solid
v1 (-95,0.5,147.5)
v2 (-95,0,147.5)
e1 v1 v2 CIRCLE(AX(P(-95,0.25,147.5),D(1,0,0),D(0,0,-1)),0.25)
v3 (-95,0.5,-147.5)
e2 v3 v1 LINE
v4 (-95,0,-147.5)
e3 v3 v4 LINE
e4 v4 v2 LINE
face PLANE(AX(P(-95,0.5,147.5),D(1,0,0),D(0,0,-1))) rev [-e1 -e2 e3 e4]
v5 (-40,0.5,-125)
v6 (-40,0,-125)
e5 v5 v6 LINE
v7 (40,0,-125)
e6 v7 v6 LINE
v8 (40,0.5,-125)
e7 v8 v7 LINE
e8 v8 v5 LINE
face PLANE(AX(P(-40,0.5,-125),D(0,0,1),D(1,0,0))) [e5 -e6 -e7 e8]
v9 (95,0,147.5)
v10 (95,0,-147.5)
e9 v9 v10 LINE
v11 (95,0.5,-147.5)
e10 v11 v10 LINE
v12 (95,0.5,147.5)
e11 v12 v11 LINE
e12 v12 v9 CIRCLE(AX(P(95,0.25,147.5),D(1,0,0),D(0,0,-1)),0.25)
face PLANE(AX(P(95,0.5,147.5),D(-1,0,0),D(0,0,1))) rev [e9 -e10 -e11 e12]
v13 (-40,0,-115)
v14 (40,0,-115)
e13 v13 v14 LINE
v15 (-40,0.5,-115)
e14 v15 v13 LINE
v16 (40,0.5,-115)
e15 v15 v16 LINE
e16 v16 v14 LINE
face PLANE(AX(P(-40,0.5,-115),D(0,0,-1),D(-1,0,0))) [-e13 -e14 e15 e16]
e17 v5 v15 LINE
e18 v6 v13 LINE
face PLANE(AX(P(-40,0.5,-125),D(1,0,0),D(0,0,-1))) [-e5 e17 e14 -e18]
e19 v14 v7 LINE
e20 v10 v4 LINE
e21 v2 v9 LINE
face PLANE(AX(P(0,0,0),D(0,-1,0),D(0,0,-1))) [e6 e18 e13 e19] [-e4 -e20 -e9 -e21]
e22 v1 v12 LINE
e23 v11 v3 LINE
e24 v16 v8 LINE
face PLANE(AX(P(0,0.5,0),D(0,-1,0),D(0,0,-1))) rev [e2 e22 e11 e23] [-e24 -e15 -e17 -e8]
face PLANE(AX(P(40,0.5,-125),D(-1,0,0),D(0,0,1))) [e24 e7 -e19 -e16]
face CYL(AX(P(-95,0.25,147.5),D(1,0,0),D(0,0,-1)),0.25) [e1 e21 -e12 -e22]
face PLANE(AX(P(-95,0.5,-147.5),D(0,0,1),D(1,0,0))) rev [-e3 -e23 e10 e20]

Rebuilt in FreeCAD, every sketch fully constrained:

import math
import FreeCAD as App
import Part
import Sketcher
from FreeCAD import Vector


def add_polygon(sketch, points):
    """Adds a closed chain of lines whose ends are joined by coincident constraints."""
    first, n = sketch.GeometryCount, len(points)
    for a, b in zip(points, points[1:] + points[:1]):
        sketch.addGeometry(Part.LineSegment(App.Vector(*a, 0), App.Vector(*b, 0)), False)
    for i in range(n):
        sketch.addConstraint(Sketcher.Constraint("Coincident", first + i, 2, first + (i + 1) % n, 1))

doc = App.newDocument("Part")
body = doc.addObject("PartDesign::Body", "Body")

# Sketch on XZ plane
sketch1 = body.newObject("Sketcher::SketchObject", "Sketch")
sketch1.AttachmentSupport = (doc.getObject("XZ_Plane"), [""])
sketch1.MapMode = "FlatFace"
add_polygon(sketch1, [(-95, -148), (-95, 148), (95, 148), (95, -148)])  # lines 0-3
add_polygon(sketch1, [(40, -115), (-40, -115), (-40, -125), (40, -125)])  # lines 4-7
sketch1.addConstraint([
    Sketcher.Constraint("Vertical", 0),
    Sketcher.Constraint("Horizontal", 1),
    Sketcher.Constraint("Vertical", 2),
    Sketcher.Constraint("Horizontal", 3),
    Sketcher.Constraint("Horizontal", 4),
    Sketcher.Constraint("Vertical", 5),
    Sketcher.Constraint("Horizontal", 6),
    Sketcher.Constraint("Vertical", 7),
    Sketcher.Constraint("Symmetric", 0, 2, 2, 2, -1, 1),
    Sketcher.Constraint("DistanceX", 1, 1, 1, 2, 190.0),
    Sketcher.Constraint("DistanceX", 4, 2, 4, 1, 80.0),
    Sketcher.Constraint("DistanceY", 0, 1, 0, 2, 295.0),
    Sketcher.Constraint("DistanceY", 5, 2, 5, 1, 10.0),
    Sketcher.Constraint("DistanceX", 4, 2, -1, 1, 40.0),
    Sketcher.Constraint("DistanceY", 4, 2, -1, 1, 115.0),
])
pad1 = body.newObject("PartDesign::Pad", "Pad")
pad1.Profile = sketch1
pad1.Length = 0.5
pad1.Reversed = True

# Sketch on YZ plane
sketch2 = body.newObject("Sketcher::SketchObject", "Sketch001")
sketch2.AttachmentSupport = (doc.getObject("YZ_Plane"), [""])
sketch2.MapMode = "FlatFace"
sketch2.AttachmentOffset = App.Placement(Vector(0, 0, 95), App.Rotation())
sketch2.addGeometry([
    Part.LineSegment(Vector(0, 147.5, 0), Vector(0.5, 147.5, 0)),
    Part.ArcOfCircle(Part.Circle(Vector(0.25, 147.5, 0), Vector(0, 0, 1), 0.25), math.radians(0), math.radians(180)),
], False)
sketch2.addConstraint([
    Sketcher.Constraint("Coincident", 0, 1, 1, 2),
    Sketcher.Constraint("Coincident", 1, 1, 0, 2),
    Sketcher.Constraint("Horizontal", 0),
    Sketcher.Constraint("PointOnObject", 0, 1, -2),
    Sketcher.Constraint("Horizontal", 1, 3, 0, 1),
    Sketcher.Constraint("Radius", 1, 0.25),
    Sketcher.Constraint("DistanceY", -1, 1, 1, 3, 147.5),
])
pad2 = body.newObject("PartDesign::Pad", "Pad001")
pad2.Profile = sketch2
pad2.Length = 190
pad2.Reversed = True

doc.recompute()
